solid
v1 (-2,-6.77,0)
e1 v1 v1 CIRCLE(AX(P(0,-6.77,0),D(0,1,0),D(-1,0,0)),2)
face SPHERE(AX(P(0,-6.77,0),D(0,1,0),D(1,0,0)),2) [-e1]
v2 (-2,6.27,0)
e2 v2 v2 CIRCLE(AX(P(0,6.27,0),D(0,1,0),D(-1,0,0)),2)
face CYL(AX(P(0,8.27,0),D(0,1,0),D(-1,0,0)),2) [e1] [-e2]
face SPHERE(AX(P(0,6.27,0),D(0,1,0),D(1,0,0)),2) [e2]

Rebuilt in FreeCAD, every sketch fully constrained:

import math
import FreeCAD as App
import Part
import Sketcher

V = App.Vector

doc = App.newDocument("Part")
body = doc.addObject("PartDesign::Body", "Body")

# Sketch on XY plane
sketch1 = doc.addObject("Sketcher::SketchObject", "Sketch")
body.addObject(sketch1)
sketch1.AttachmentSupport = (doc.XY_Plane, [""])
sketch1.MapMode = "FlatFace"
sketch1.addGeometry(Part.LineSegment(V(0, 8.3, 0), V(0, -8.8, 0)), False)
sketch1.addGeometry(Part.ArcOfCircle(Part.Circle(V(0, -6.8, 0), V(0, 0, 1), 2), math.radians(-90), math.radians(0)), False)
sketch1.addGeometry(Part.LineSegment(V(2, -6.8, 0), V(2, 6.3, 0)), False)
sketch1.addGeometry(Part.ArcOfCircle(Part.Circle(V(0, 6.3, 0), V(0, 0, 1), 2), math.radians(0), math.radians(90)), False)
sketch1.addConstraint(Sketcher.Constraint("Coincident", 0, 2, 1, 1))
sketch1.addConstraint(Sketcher.Constraint("Tangent", 1, 2, 2, 1))
sketch1.addConstraint(Sketcher.Constraint("Tangent", 2, 2, 3, 1))
sketch1.addConstraint(Sketcher.Constraint("Coincident", 3, 2, 0, 1))
sketch1.addConstraint(Sketcher.Constraint("Vertical", 0))
sketch1.addConstraint(Sketcher.Constraint("Vertical", 2))
sketch1.addConstraint(Sketcher.Constraint("Equal", 1, 3))
sketch1.addConstraint(Sketcher.Constraint("PointOnObject", 1, 3, -2))
sketch1.addConstraint(Sketcher.Constraint("PointOnObject", 0, 2, -2))
sketch1.addConstraint(Sketcher.Constraint("Radius", 1, 2.0))
sketch1.addConstraint(Sketcher.Constraint("DistanceY", 0, 2, 0, 1, 17.04))
sketch1.addConstraint(Sketcher.Constraint("DistanceY", 1, 3, -1, 1, 6.77))
revolution = doc.addObject("PartDesign::Revolution", "Revolution")
body.addObject(revolution)
revolution.Profile = sketch1
revolution.ReferenceAxis = (sketch1, ["V_Axis"])
revolution.Angle = 360

doc.recompute()
